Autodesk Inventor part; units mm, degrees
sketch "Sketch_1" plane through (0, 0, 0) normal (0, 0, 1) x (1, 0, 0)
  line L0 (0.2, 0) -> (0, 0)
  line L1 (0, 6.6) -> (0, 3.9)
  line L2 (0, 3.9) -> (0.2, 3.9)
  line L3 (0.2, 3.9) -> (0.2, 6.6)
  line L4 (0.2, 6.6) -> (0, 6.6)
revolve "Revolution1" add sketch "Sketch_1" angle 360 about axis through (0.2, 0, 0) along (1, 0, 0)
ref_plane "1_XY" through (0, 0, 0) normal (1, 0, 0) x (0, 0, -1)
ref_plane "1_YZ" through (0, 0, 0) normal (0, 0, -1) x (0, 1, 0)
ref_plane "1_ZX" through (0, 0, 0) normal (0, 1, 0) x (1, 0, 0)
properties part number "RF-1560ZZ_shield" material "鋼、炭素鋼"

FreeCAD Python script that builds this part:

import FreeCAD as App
import Part
import Sketcher
Q = App.Units.Quantity

doc = App.newDocument("Part")
body = doc.addObject("PartDesign::Body", "Body")

# Sketch on XY plane
sketch1 = doc.addObject("Sketcher::SketchObject", "Sketch")
body.addObject(sketch1)
sketch1.AttachmentSupport = (doc.XY_Plane, [""])
sketch1.MapMode = "FlatFace"
sketch1.addGeometry(Part.LineSegment(App.Vector(0.2, 6.6, 0), App.Vector(0, 6.6, 0)), False)
sketch1.addGeometry(Part.LineSegment(App.Vector(0, 6.6, 0), App.Vector(0, 3.9, 0)), False)
sketch1.addGeometry(Part.LineSegment(App.Vector(0, 3.9, 0), App.Vector(0.2, 3.9, 0)), False)
sketch1.addGeometry(Part.LineSegment(App.Vector(0.2, 3.9, 0), App.Vector(0.2, 6.6, 0)), False)
sketch1.addConstraint(Sketcher.Constraint("Coincident", 0, 2, 1, 1))
sketch1.addConstraint(Sketcher.Constraint("Coincident", 1, 2, 2, 1))
sketch1.addConstraint(Sketcher.Constraint("Coincident", 2, 2, 3, 1))
sketch1.addConstraint(Sketcher.Constraint("Coincident", 3, 2, 0, 1))
sketch1.addConstraint(Sketcher.Constraint("Horizontal", 0))
sketch1.addConstraint(Sketcher.Constraint("Vertical", 1))
sketch1.addConstraint(Sketcher.Constraint("Horizontal", 2))
sketch1.addConstraint(Sketcher.Constraint("Vertical", 3))
sketch1.addConstraint(Sketcher.Constraint("PointOnObject", 0, 2, -2))
sketch1.addConstraint(Sketcher.Constraint("DistanceX", 0, 2, 0, 1, Q("0.2 mm")))
sketch1.addConstraint(Sketcher.Constraint("DistanceY", 1, 2, 1, 1, Q("2.7 mm")))
sketch1.addConstraint(Sketcher.Constraint("DistanceY", -1, 1, 0, 2, Q("6.6 mm")))
revolution = doc.addObject("PartDesign::Revolution", "Revolution")
body.addObject(revolution)
revolution.Profile = sketch1
revolution.ReferenceAxis = (sketch1, ["H_Axis"])
revolution.Angle = 360

doc.recompute()
